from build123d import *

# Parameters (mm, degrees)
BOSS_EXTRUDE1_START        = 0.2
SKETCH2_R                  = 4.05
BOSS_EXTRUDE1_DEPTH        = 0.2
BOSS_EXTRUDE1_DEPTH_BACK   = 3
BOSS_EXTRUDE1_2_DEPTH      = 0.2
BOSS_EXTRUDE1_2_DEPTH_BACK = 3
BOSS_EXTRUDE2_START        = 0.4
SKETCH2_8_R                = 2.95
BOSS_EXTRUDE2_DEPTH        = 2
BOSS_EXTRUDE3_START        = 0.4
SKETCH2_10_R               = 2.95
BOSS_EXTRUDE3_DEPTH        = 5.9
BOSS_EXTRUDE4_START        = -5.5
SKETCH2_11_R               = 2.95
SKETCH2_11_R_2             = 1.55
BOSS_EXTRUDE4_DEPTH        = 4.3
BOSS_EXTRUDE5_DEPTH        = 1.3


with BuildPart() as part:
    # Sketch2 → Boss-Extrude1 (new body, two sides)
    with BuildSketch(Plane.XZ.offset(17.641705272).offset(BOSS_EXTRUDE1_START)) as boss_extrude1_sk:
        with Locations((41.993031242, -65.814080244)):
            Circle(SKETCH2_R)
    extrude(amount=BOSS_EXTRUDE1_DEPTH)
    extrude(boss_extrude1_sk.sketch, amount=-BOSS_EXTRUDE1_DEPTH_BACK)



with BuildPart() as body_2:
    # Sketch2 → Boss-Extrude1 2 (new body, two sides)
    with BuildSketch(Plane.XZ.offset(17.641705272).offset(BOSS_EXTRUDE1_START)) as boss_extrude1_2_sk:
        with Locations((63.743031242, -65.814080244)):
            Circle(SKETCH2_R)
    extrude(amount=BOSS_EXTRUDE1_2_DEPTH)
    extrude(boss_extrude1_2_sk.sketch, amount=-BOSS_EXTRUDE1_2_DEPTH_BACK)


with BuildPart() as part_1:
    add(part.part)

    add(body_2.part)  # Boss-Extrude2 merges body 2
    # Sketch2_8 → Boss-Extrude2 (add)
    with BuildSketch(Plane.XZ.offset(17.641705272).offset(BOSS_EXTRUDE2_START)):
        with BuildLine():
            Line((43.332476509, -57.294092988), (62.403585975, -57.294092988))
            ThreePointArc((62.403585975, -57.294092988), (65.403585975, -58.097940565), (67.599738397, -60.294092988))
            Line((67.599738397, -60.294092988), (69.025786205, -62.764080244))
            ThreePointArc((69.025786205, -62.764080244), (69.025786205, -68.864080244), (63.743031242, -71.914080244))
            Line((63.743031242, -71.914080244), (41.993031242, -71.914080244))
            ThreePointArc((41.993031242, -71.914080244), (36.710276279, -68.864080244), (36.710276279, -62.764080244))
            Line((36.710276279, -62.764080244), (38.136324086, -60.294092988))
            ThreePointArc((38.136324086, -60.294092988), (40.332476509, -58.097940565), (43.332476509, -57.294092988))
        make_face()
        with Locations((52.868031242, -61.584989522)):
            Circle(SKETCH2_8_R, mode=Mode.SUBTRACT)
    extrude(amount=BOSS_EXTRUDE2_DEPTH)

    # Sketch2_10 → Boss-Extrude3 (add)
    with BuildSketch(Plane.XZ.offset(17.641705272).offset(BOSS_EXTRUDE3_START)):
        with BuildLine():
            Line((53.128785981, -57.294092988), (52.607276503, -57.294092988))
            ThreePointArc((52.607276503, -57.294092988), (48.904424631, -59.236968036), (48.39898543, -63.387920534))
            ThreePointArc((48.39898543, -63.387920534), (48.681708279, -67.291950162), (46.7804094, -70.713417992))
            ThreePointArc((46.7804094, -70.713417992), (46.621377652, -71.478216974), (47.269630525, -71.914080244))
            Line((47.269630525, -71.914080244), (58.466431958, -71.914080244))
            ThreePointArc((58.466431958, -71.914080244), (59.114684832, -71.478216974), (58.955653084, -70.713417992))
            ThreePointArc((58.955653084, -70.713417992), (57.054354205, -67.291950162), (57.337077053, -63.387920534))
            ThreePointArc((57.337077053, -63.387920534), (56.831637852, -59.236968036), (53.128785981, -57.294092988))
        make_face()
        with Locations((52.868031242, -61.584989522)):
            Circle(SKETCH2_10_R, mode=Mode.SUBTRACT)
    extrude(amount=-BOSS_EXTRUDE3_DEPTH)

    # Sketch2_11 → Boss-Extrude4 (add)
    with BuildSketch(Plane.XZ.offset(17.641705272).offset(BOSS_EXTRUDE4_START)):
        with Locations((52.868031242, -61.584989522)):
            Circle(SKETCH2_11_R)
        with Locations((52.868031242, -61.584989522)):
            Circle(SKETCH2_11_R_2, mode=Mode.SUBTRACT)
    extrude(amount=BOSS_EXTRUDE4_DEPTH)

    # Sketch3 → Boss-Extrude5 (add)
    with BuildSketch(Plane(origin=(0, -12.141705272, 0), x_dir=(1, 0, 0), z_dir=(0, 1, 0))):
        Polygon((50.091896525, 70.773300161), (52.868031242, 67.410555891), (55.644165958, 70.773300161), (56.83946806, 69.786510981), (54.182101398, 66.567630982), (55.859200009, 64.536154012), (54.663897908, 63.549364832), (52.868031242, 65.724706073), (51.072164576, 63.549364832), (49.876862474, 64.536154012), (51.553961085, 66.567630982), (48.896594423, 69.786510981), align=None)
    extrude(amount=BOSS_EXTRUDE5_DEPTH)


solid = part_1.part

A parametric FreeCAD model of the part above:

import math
import FreeCAD as App
import Part
import Sketcher
Q = App.Units.Quantity

doc = App.newDocument("Part")
body = doc.addObject("PartDesign::Body", "Body")

sketch1 = body.newObject("Sketcher::SketchObject", "Sketch")
sketch1.AttachmentSupport = (doc.getObject("XZ_Plane"), [""])
sketch1.MapMode = "FlatFace"
sketch1.AttachmentOffset = App.Placement(App.Vector(0, 0, 17.841705), App.Rotation())
sketch1.addGeometry(Part.Circle(App.Vector(41.993031, -65.81408, 0), App.Vector(0, 0, 1), 4.05), False)
sketch1.addConstraint(Sketcher.Constraint("Diameter", 0, 8.1))
sketch1.addConstraint(Sketcher.Constraint("DistanceX", -1, 1, 0, 3, 41.993031))
sketch1.addConstraint(Sketcher.Constraint("DistanceY", 0, 3, -1, 1, 65.81408))
pad1 = body.newObject("PartDesign::Pad", "Pad")
pad1.Profile = sketch1
pad1.Type = "TwoLengths"
pad1.Length = 0.2
pad1.Length2 = 3
body2 = doc.addObject("PartDesign::Body", "Body001")

sketch2 = body2.newObject("Sketcher::SketchObject", "Sketch001")
sketch2.AttachmentSupport = (doc.getObject("XZ_Plane001"), [""])
sketch2.MapMode = "FlatFace"
sketch2.AttachmentOffset = App.Placement(App.Vector(0, 0, 17.841705), App.Rotation())
sketch2.addGeometry(Part.Circle(App.Vector(63.743031, -65.81408, 0), App.Vector(0, 0, 1), 4.05), False)
sketch2.addConstraint(Sketcher.Constraint("Diameter", 0, 8.1))
sketch2.addConstraint(Sketcher.Constraint("DistanceX", -1, 1, 0, 3, 63.743031))
sketch2.addConstraint(Sketcher.Constraint("DistanceY", 0, 3, -1, 1, 65.81408))
pad2 = body2.newObject("PartDesign::Pad", "Pad001")
pad2.Profile = sketch2
pad2.Type = "TwoLengths"
pad2.Length = 0.2
pad2.Length2 = 3
body.AllowCompound = True
doc.recompute()

boolean = body.newObject("PartDesign::Boolean", "Boolean")
boolean.Type = "Fuse"
boolean.addObjects([body2])

sketch3 = body.newObject("Sketcher::SketchObject", "Sketch002")
sketch3.AttachmentSupport = (doc.getObject("XZ_Plane"), [""])
sketch3.MapMode = "FlatFace"
sketch3.AttachmentOffset = App.Placement(App.Vector(0, 0, 18.041705), App.Rotation())
sketch3.addGeometry(Part.LineSegment(App.Vector(62.403586, -57.294093, 0), App.Vector(43.332477, -57.294093, 0)), False)
sketch3.addGeometry(Part.ArcOfCircle(Part.Circle(App.Vector(43.332477, -63.294093, 0), App.Vector(0, 0, 1), 6), math.radians(90), math.radians(150)), False)
sketch3.addGeometry(Part.LineSegment(App.Vector(38.136324, -60.294093, 0), App.Vector(36.710276, -62.76408, 0)), False)
sketch3.addGeometry(Part.ArcOfCircle(Part.Circle(App.Vector(41.993031, -65.81408, 0), App.Vector(0, 0, 1), 6.1), math.radians(150), math.radians(270)), False)
sketch3.addGeometry(Part.LineSegment(App.Vector(41.993031, -71.91408, 0), App.Vector(63.743031, -71.91408, 0)), False)
sketch3.addGeometry(Part.ArcOfCircle(Part.Circle(App.Vector(63.743031, -65.81408, 0), App.Vector(0, 0, 1), 6.1), math.radians(-90), math.radians(30)), False)
sketch3.addGeometry(Part.LineSegment(App.Vector(69.025786, -62.76408, 0), App.Vector(67.599738, -60.294093, 0)), False)
sketch3.addGeometry(Part.ArcOfCircle(Part.Circle(App.Vector(62.403586, -63.294093, 0), App.Vector(0, 0, 1), 6), math.radians(30), math.radians(90)), False)
sketch3.addGeometry(Part.Circle(App.Vector(52.868031, -61.58499, 0), App.Vector(0, 0, 1), 2.95), False)
sketch3.addConstraint(Sketcher.Constraint("Tangent", 0, 2, 1, 1))
sketch3.addConstraint(Sketcher.Constraint("Tangent", 1, 2, 2, 1))
sketch3.addConstraint(Sketcher.Constraint("Tangent", 2, 2, 3, 1))
sketch3.addConstraint(Sketcher.Constraint("Tangent", 3, 2, 4, 1))
sketch3.addConstraint(Sketcher.Constraint("Tangent", 4, 2, 5, 1))
sketch3.addConstraint(Sketcher.Constraint("Tangent", 5, 2, 6, 1))
sketch3.addConstraint(Sketcher.Constraint("Tangent", 6, 2, 7, 1))
sketch3.addConstraint(Sketcher.Constraint("Tangent", 7, 2, 0, 1))
sketch3.addConstraint(Sketcher.Constraint("Horizontal", 0))
sketch3.addConstraint(Sketcher.Constraint("Horizontal", 4))
sketch3.addConstraint(Sketcher.Constraint("Equal", 3, 5))
sketch3.addConstraint(Sketcher.Constraint("Equal", 1, 7))
sketch3.addConstraint(Sketcher.Constraint("Horizontal", 2, 2, 5, 2))
sketch3.addConstraint(Sketcher.Constraint("Radius", 1, 6.0))
sketch3.addConstraint(Sketcher.Constraint("Diameter", 8, 5.9))
sketch3.addConstraint(Sketcher.Constraint("Radius", 3, 6.1))
sketch3.addConstraint(Sketcher.Constraint("Angle", 2, Q("-120 deg")))
sketch3.addConstraint(Sketcher.Constraint("DistanceX", 4, 1, 4, 2, 21.75))
sketch3.addConstraint(Sketcher.Constraint("DistanceX", 3, 3, 8, 3, 10.875))
sketch3.addConstraint(Sketcher.Constraint("DistanceX", 0, 2, 0, 1, 19.071109))
sketch3.addConstraint(Sketcher.Constraint("DistanceX", -1, 1, 3, 3, 41.993031))
sketch3.addConstraint(Sketcher.Constraint("DistanceY", 3, 3, -1, 1, 65.81408))
sketch3.addConstraint(Sketcher.Constraint("DistanceY", 8, 3, -1, 1, 61.58499))
pad3 = body.newObject("PartDesign::Pad", "Pad002")
pad3.Profile = sketch3
pad3.Length = 2

sketch4 = body.newObject("Sketcher::SketchObject", "Sketch003")
sketch4.AttachmentSupport = (doc.getObject("XZ_Plane"), [""])
sketch4.MapMode = "FlatFace"
sketch4.AttachmentOffset = App.Placement(App.Vector(0, 0, 18.041705), App.Rotation())
sketch4.addGeometry(Part.LineSegment(App.Vector(53.128786, -57.294093, 0), App.Vector(52.607277, -57.294093, 0)), False)
sketch4.addGeometry(Part.ArcOfCircle(Part.Circle(App.Vector(52.607277, -61.794093, 0), App.Vector(0, 0, 1), 4.5), math.radians(90), math.radians(200.743436)), False)
sketch4.addGeometry(Part.ArcOfCircle(Part.Circle(App.Vector(41.993031, -65.81408, 0), App.Vector(0, 0, 1), 6.85), math.radians(-45.662198), math.radians(20.743436)), False)
sketch4.addGeometry(Part.ArcOfCircle(Part.Circle(App.Vector(47.269631, -71.21408, 0), App.Vector(0, 0, 1), 0.7), math.radians(134.337802), math.radians(270)), False)
sketch4.addGeometry(Part.LineSegment(App.Vector(47.269631, -71.91408, 0), App.Vector(58.466432, -71.91408, 0)), False)
sketch4.addGeometry(Part.ArcOfCircle(Part.Circle(App.Vector(58.466432, -71.21408, 0), App.Vector(0, 0, 1), 0.7), math.radians(-90), math.radians(45.662198)), False)
sketch4.addGeometry(Part.ArcOfCircle(Part.Circle(App.Vector(63.743031, -65.81408, 0), App.Vector(0, 0, 1), 6.85), math.radians(159.256564), math.radians(225.662198)), False)
sketch4.addGeometry(Part.ArcOfCircle(Part.Circle(App.Vector(53.128786, -61.794093, 0), App.Vector(0, 0, 1), 4.5), math.radians(-20.743436), math.radians(90)), False)
sketch4.addGeometry(Part.Circle(App.Vector(52.868031, -61.58499, 0), App.Vector(0, 0, 1), 2.95), False)
sketch4.addConstraint(Sketcher.Constraint("Tangent", 0, 2, 1, 1))
sketch4.addConstraint(Sketcher.Constraint("Tangent", 1, 2, 2, 2))
sketch4.addConstraint(Sketcher.Constraint("Tangent", 2, 1, 3, 1))
sketch4.addConstraint(Sketcher.Constraint("Tangent", 3, 2, 4, 1))
sketch4.addConstraint(Sketcher.Constraint("Tangent", 4, 2, 5, 1))
sketch4.addConstraint(Sketcher.Constraint("Tangent", 5, 2, 6, 2))
sketch4.addConstraint(Sketcher.Constraint("Tangent", 6, 1, 7, 1))
sketch4.addConstraint(Sketcher.Constraint("Tangent", 7, 2, 0, 1))
sketch4.addConstraint(Sketcher.Constraint("Horizontal", 0))
sketch4.addConstraint(Sketcher.Constraint("Horizontal", 4))
sketch4.addConstraint(Sketcher.Constraint("Equal", 3, 5))
sketch4.addConstraint(Sketcher.Constraint("Equal", 2, 6))
sketch4.addConstraint(Sketcher.Constraint("Equal", 1, 7))
sketch4.addConstraint(Sketcher.Constraint("Horizontal", 2, 3, 6, 3))
sketch4.addConstraint(Sketcher.Constraint("Diameter", 8, 5.9))
sketch4.addConstraint(Sketcher.Constraint("Radius", 1, 4.5))
sketch4.addConstraint(Sketcher.Constraint("Radius", 3, 0.7))
sketch4.addConstraint(Sketcher.Constraint("Radius", 2, 6.85))
sketch4.addConstraint(Sketcher.Constraint("DistanceY", 3, 3, 2, 3, 5.4))
sketch4.addConstraint(Sketcher.Constraint("DistanceX", 2, 3, 6, 3, 21.75))
sketch4.addConstraint(Sketcher.Constraint("DistanceX", 2, 3, 8, 3, 10.875))
sketch4.addConstraint(Sketcher.Constraint("DistanceX", 0, 2, 0, 1, 0.521509))
sketch4.addConstraint(Sketcher.Constraint("DistanceX", -1, 1, 2, 3, 41.993031))
sketch4.addConstraint(Sketcher.Constraint("DistanceY", 2, 3, -1, 1, 65.81408))
sketch4.addConstraint(Sketcher.Constraint("DistanceY", 8, 3, -1, 1, 61.58499))
pad4 = body.newObject("PartDesign::Pad", "Pad003")
pad4.Profile = sketch4
pad4.Length = 5.9
pad4.Reversed = True

sketch5 = body.newObject("Sketcher::SketchObject", "Sketch004")
sketch5.AttachmentSupport = (doc.getObject("XZ_Plane"), [""])
sketch5.MapMode = "FlatFace"
sketch5.AttachmentOffset = App.Placement(App.Vector(0, 0, 12.141705), App.Rotation())
sketch5.addGeometry(Part.Circle(App.Vector(52.868031, -61.58499, 0), App.Vector(0, 0, 1), 2.95), False)
sketch5.addGeometry(Part.Circle(App.Vector(52.868031, -61.58499, 0), App.Vector(0, 0, 1), 1.55), False)
sketch5.addConstraint(Sketcher.Constraint("Coincident", 1, 3, 0, 3))
sketch5.addConstraint(Sketcher.Constraint("Diameter", 0, 5.9))
sketch5.addConstraint(Sketcher.Constraint("Diameter", 1, 3.1))
sketch5.addConstraint(Sketcher.Constraint("DistanceX", -1, 1, 0, 3, 52.868031))
sketch5.addConstraint(Sketcher.Constraint("DistanceY", 0, 3, -1, 1, 61.58499))
pad5 = body.newObject("PartDesign::Pad", "Pad004")
pad5.Profile = sketch5
pad5.Length = 4.3

sketch6 = body.newObject("Sketcher::SketchObject", "Sketch005")
sketch6.AttachmentSupport = (doc.getObject("XZ_Plane"), [""])
sketch6.MapMode = "FlatFace"
sketch6.AttachmentOffset = App.Placement(App.Vector(0, 0, 12.141705), App.Rotation())
sketch6.addGeometry(Part.LineSegment(App.Vector(52.868031, -67.410556, 0), App.Vector(50.091897, -70.7733, 0)), False)
sketch6.addGeometry(Part.LineSegment(App.Vector(50.091897, -70.7733, 0), App.Vector(48.896594, -69.786511, 0)), False)
sketch6.addGeometry(Part.LineSegment(App.Vector(48.896594, -69.786511, 0), App.Vector(51.553961, -66.567631, 0)), False)
sketch6.addGeometry(Part.LineSegment(App.Vector(51.553961, -66.567631, 0), App.Vector(49.876862, -64.536154, 0)), False)
sketch6.addGeometry(Part.LineSegment(App.Vector(49.876862, -64.536154, 0), App.Vector(51.072165, -63.549365, 0)), False)
sketch6.addGeometry(Part.LineSegment(App.Vector(51.072165, -63.549365, 0), App.Vector(52.868031, -65.724706, 0)), False)
sketch6.addGeometry(Part.LineSegment(App.Vector(52.868031, -65.724706, 0), App.Vector(54.663898, -63.549365, 0)), False)
sketch6.addGeometry(Part.LineSegment(App.Vector(54.663898, -63.549365, 0), App.Vector(55.8592, -64.536154, 0)), False)
sketch6.addGeometry(Part.LineSegment(App.Vector(55.8592, -64.536154, 0), App.Vector(54.182101, -66.567631, 0)), False)
sketch6.addGeometry(Part.LineSegment(App.Vector(54.182101, -66.567631, 0), App.Vector(56.839468, -69.786511, 0)), False)
sketch6.addGeometry(Part.LineSegment(App.Vector(56.839468, -69.786511, 0), App.Vector(55.644166, -70.7733, 0)), False)
sketch6.addGeometry(Part.LineSegment(App.Vector(55.644166, -70.7733, 0), App.Vector(52.868031, -67.410556, 0)), False)
sketch6.addConstraint(Sketcher.Constraint("Coincident", 0, 2, 1, 1))
sketch6.addConstraint(Sketcher.Constraint("Coincident", 1, 2, 2, 1))
sketch6.addConstraint(Sketcher.Constraint("Coincident", 2, 2, 3, 1))
sketch6.addConstraint(Sketcher.Constraint("Coincident", 3, 2, 4, 1))
sketch6.addConstraint(Sketcher.Constraint("Coincident", 4, 2, 5, 1))
sketch6.addConstraint(Sketcher.Constraint("Coincident", 5, 2, 6, 1))
sketch6.addConstraint(Sketcher.Constraint("Coincident", 6, 2, 7, 1))
sketch6.addConstraint(Sketcher.Constraint("Coincident", 7, 2, 8, 1))
sketch6.addConstraint(Sketcher.Constraint("Coincident", 8, 2, 9, 1))
sketch6.addConstraint(Sketcher.Constraint("Coincident", 9, 2, 10, 1))
sketch6.addConstraint(Sketcher.Constraint("Coincident", 10, 2, 11, 1))
sketch6.addConstraint(Sketcher.Constraint("Coincident", 11, 2, 0, 1))
sketch6.addConstraint(Sketcher.Constraint("Perpendicular", 0, 1))
sketch6.addConstraint(Sketcher.Constraint("Perpendicular", 1, 2))
sketch6.addConstraint(Sketcher.Constraint("Perpendicular", 3, 4))
sketch6.addConstraint(Sketcher.Constraint("Perpendicular", 4, 5))
sketch6.addConstraint(Sketcher.Constraint("Parallel", 2, 6))
sketch6.addConstraint(Sketcher.Constraint("Perpendicular", 6, 7))
sketch6.addConstraint(Sketcher.Constraint("Perpendicular", 7, 8))
sketch6.addConstraint(Sketcher.Constraint("Parallel", 5, 9))
sketch6.addConstraint(Sketcher.Constraint("Perpendicular", 9, 10))
sketch6.addConstraint(Sketcher.Constraint("Perpendicular", 10, 11))
sketch6.addConstraint(Sketcher.Constraint("Horizontal", 4, 2, 6, 2))
sketch6.addConstraint(Sketcher.Constraint("Horizontal", 3, 2, 7, 2))
sketch6.addConstraint(Sketcher.Constraint("Horizontal", 2, 2, 8, 2))
sketch6.addConstraint(Sketcher.Constraint("Horizontal", 1, 2, 9, 2))
sketch6.addConstraint(Sketcher.Constraint("Horizontal", 0, 2, 10, 2))
sketch6.addConstraint(Sketcher.Constraint("Vertical", 5, 2, 11, 2))
sketch6.addConstraint(Sketcher.Constraint("Equal", 1, 4))
sketch6.addConstraint(Sketcher.Constraint("Distance", 1, 1.55))
sketch6.addConstraint(Sketcher.Constraint("DistanceY", 0, 2, -1, 1, 70.7733))
sketch6.addConstraint(Sketcher.Constraint("DistanceX", -1, 1, 7, 2, 55.8592))
sketch6.addConstraint(Sketcher.Constraint("DistanceX", -1, 1, 8, 2, 54.182101))
sketch6.addConstraint(Sketcher.Constraint("DistanceY", 11, 2, 7, 2, 2.874402))
sketch6.addConstraint(Sketcher.Constraint("Distance", 2, 4.174061))
sketch6.addConstraint(Sketcher.Constraint("Distance", 5, 2.820859))
pad6 = body.newObject("PartDesign::Pad", "Pad005")
pad6.Profile = sketch6
pad6.Length = 1.3
pad6.Reversed = True

doc.recompute()
